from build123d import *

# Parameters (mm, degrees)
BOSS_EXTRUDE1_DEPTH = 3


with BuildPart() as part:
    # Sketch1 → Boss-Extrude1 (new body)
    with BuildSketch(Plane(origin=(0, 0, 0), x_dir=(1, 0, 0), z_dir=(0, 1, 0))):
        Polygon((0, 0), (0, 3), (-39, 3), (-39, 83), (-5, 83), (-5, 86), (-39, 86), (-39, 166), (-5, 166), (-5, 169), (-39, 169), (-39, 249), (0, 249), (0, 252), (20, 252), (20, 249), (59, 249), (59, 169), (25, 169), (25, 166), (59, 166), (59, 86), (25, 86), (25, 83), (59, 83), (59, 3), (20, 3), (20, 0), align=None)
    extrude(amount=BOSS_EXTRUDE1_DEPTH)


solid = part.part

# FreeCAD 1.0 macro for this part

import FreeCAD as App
import Part
import Sketcher
Q = App.Units.Quantity


def add_polygon(sketch, points):
    """Adds a closed chain of lines whose ends are joined by coincident constraints."""
    first, n = sketch.GeometryCount, len(points)
    for a, b in zip(points, points[1:] + points[:1]):
        sketch.addGeometry(Part.LineSegment(App.Vector(*a, 0), App.Vector(*b, 0)), False)
    for i in range(n):
        sketch.addConstraint(Sketcher.Constraint("Coincident", first + i, 2, first + (i + 1) % n, 1))

doc = App.newDocument("Part")
body = doc.addObject("PartDesign::Body", "Body")

# Sketch on XZ plane
sketch1 = body.newObject("Sketcher::SketchObject", "Sketch")
sketch1.AttachmentSupport = (doc.getObject("XZ_Plane"), [""])
sketch1.MapMode = "FlatFace"
add_polygon(sketch1, [(0, -3), (0, 0), (20, 0), (20, -3), (59, -3), (59, -83), (25, -83), (25, -86), (59, -86), (59, -166), (25, -166), (25, -169), (59, -169), (59, -249), (20, -249), (20, -252), (0, -252), (0, -249), (-39, -249), (-39, -169), (-5, -169), (-5, -166), (-39, -166), (-39, -86), (-5, -86), (-5, -83), (-39, -83), (-39, -3)])  # lines 0-27
sketch1.addConstraint(Sketcher.Constraint("Vertical", 0))
sketch1.addConstraint(Sketcher.Constraint("Horizontal", 1))
sketch1.addConstraint(Sketcher.Constraint("Vertical", 2))
sketch1.addConstraint(Sketcher.Constraint("Horizontal", 3))
sketch1.addConstraint(Sketcher.Constraint("Vertical", 4))
sketch1.addConstraint(Sketcher.Constraint("Horizontal", 5))
sketch1.addConstraint(Sketcher.Constraint("Vertical", 6))
sketch1.addConstraint(Sketcher.Constraint("Horizontal", 7))
sketch1.addConstraint(Sketcher.Constraint("Vertical", 8))
sketch1.addConstraint(Sketcher.Constraint("Horizontal", 9))
sketch1.addConstraint(Sketcher.Constraint("Vertical", 10))
sketch1.addConstraint(Sketcher.Constraint("Horizontal", 11))
sketch1.addConstraint(Sketcher.Constraint("Vertical", 12))
sketch1.addConstraint(Sketcher.Constraint("Horizontal", 13))
sketch1.addConstraint(Sketcher.Constraint("Vertical", 14))
sketch1.addConstraint(Sketcher.Constraint("Horizontal", 15))
sketch1.addConstraint(Sketcher.Constraint("Vertical", 16))
sketch1.addConstraint(Sketcher.Constraint("Horizontal", 17))
sketch1.addConstraint(Sketcher.Constraint("Vertical", 18))
sketch1.addConstraint(Sketcher.Constraint("Horizontal", 19))
sketch1.addConstraint(Sketcher.Constraint("Vertical", 20))
sketch1.addConstraint(Sketcher.Constraint("Horizontal", 21))
sketch1.addConstraint(Sketcher.Constraint("Vertical", 22))
sketch1.addConstraint(Sketcher.Constraint("Horizontal", 23))
sketch1.addConstraint(Sketcher.Constraint("Vertical", 24))
sketch1.addConstraint(Sketcher.Constraint("Horizontal", 25))
sketch1.addConstraint(Sketcher.Constraint("Vertical", 26))
sketch1.addConstraint(Sketcher.Constraint("Horizontal", 27))
sketch1.addConstraint(Sketcher.Constraint("Coincident", 0, 2, -1, 1))
sketch1.addConstraint(Sketcher.Constraint("PointOnObject", 15, 2, -2))
sketch1.addConstraint(Sketcher.Constraint("Horizontal", 13, 2, 16, 2))
sketch1.addConstraint(Sketcher.Constraint("Horizontal", 11, 2, 18, 2))
sketch1.addConstraint(Sketcher.Constraint("Horizontal", 9, 2, 20, 2))
sketch1.addConstraint(Sketcher.Constraint("Horizontal", 7, 2, 22, 2))
sketch1.addConstraint(Sketcher.Constraint("Horizontal", 5, 2, 24, 2))
sketch1.addConstraint(Sketcher.Constraint("Horizontal", 3, 2, 26, 2))
sketch1.addConstraint(Sketcher.Constraint("Vertical", 4, 2, 7, 2))
sketch1.addConstraint(Sketcher.Constraint("Vertical", 6, 2, 9, 2))
sketch1.addConstraint(Sketcher.Constraint("Vertical", 8, 2, 11, 2))
sketch1.addConstraint(Sketcher.Constraint("Vertical", 2, 2, 13, 2))
sketch1.addConstraint(Sketcher.Constraint("Vertical", 18, 2, 21, 2))
sketch1.addConstraint(Sketcher.Constraint("Vertical", 20, 2, 23, 2))
sketch1.addConstraint(Sketcher.Constraint("Vertical", 22, 2, 25, 2))
sketch1.addConstraint(Sketcher.Constraint("Equal", 13, 17))
sketch1.addConstraint(Sketcher.Constraint("Equal", 11, 19))
sketch1.addConstraint(Sketcher.Constraint("Equal", 2, 6))
sketch1.addConstraint(Sketcher.Constraint("Equal", 4, 8))
sketch1.addConstraint(Sketcher.Constraint("Equal", 6, 10))
sketch1.addConstraint(Sketcher.Constraint("Equal", 8, 12))
sketch1.addConstraint(Sketcher.Constraint("Equal", 10, 14))
sketch1.addConstraint(Sketcher.Constraint("DistanceX", 1, 1, 1, 2, Q("20 mm")))
sketch1.addConstraint(Sketcher.Constraint("DistanceX", 3, 1, 3, 2, Q("39 mm")))
sketch1.addConstraint(Sketcher.Constraint("DistanceX", 5, 2, 5, 1, Q("34 mm")))
sketch1.addConstraint(Sketcher.Constraint("DistanceY", 0, 1, 0, 2, Q("3 mm")))
sketch1.addConstraint(Sketcher.Constraint("DistanceY", 4, 2, 4, 1, Q("80 mm")))
pad1 = body.newObject("PartDesign::Pad", "Pad")
pad1.Profile = sketch1
pad1.Length = 3
pad1.Reversed = True

doc.recompute()
